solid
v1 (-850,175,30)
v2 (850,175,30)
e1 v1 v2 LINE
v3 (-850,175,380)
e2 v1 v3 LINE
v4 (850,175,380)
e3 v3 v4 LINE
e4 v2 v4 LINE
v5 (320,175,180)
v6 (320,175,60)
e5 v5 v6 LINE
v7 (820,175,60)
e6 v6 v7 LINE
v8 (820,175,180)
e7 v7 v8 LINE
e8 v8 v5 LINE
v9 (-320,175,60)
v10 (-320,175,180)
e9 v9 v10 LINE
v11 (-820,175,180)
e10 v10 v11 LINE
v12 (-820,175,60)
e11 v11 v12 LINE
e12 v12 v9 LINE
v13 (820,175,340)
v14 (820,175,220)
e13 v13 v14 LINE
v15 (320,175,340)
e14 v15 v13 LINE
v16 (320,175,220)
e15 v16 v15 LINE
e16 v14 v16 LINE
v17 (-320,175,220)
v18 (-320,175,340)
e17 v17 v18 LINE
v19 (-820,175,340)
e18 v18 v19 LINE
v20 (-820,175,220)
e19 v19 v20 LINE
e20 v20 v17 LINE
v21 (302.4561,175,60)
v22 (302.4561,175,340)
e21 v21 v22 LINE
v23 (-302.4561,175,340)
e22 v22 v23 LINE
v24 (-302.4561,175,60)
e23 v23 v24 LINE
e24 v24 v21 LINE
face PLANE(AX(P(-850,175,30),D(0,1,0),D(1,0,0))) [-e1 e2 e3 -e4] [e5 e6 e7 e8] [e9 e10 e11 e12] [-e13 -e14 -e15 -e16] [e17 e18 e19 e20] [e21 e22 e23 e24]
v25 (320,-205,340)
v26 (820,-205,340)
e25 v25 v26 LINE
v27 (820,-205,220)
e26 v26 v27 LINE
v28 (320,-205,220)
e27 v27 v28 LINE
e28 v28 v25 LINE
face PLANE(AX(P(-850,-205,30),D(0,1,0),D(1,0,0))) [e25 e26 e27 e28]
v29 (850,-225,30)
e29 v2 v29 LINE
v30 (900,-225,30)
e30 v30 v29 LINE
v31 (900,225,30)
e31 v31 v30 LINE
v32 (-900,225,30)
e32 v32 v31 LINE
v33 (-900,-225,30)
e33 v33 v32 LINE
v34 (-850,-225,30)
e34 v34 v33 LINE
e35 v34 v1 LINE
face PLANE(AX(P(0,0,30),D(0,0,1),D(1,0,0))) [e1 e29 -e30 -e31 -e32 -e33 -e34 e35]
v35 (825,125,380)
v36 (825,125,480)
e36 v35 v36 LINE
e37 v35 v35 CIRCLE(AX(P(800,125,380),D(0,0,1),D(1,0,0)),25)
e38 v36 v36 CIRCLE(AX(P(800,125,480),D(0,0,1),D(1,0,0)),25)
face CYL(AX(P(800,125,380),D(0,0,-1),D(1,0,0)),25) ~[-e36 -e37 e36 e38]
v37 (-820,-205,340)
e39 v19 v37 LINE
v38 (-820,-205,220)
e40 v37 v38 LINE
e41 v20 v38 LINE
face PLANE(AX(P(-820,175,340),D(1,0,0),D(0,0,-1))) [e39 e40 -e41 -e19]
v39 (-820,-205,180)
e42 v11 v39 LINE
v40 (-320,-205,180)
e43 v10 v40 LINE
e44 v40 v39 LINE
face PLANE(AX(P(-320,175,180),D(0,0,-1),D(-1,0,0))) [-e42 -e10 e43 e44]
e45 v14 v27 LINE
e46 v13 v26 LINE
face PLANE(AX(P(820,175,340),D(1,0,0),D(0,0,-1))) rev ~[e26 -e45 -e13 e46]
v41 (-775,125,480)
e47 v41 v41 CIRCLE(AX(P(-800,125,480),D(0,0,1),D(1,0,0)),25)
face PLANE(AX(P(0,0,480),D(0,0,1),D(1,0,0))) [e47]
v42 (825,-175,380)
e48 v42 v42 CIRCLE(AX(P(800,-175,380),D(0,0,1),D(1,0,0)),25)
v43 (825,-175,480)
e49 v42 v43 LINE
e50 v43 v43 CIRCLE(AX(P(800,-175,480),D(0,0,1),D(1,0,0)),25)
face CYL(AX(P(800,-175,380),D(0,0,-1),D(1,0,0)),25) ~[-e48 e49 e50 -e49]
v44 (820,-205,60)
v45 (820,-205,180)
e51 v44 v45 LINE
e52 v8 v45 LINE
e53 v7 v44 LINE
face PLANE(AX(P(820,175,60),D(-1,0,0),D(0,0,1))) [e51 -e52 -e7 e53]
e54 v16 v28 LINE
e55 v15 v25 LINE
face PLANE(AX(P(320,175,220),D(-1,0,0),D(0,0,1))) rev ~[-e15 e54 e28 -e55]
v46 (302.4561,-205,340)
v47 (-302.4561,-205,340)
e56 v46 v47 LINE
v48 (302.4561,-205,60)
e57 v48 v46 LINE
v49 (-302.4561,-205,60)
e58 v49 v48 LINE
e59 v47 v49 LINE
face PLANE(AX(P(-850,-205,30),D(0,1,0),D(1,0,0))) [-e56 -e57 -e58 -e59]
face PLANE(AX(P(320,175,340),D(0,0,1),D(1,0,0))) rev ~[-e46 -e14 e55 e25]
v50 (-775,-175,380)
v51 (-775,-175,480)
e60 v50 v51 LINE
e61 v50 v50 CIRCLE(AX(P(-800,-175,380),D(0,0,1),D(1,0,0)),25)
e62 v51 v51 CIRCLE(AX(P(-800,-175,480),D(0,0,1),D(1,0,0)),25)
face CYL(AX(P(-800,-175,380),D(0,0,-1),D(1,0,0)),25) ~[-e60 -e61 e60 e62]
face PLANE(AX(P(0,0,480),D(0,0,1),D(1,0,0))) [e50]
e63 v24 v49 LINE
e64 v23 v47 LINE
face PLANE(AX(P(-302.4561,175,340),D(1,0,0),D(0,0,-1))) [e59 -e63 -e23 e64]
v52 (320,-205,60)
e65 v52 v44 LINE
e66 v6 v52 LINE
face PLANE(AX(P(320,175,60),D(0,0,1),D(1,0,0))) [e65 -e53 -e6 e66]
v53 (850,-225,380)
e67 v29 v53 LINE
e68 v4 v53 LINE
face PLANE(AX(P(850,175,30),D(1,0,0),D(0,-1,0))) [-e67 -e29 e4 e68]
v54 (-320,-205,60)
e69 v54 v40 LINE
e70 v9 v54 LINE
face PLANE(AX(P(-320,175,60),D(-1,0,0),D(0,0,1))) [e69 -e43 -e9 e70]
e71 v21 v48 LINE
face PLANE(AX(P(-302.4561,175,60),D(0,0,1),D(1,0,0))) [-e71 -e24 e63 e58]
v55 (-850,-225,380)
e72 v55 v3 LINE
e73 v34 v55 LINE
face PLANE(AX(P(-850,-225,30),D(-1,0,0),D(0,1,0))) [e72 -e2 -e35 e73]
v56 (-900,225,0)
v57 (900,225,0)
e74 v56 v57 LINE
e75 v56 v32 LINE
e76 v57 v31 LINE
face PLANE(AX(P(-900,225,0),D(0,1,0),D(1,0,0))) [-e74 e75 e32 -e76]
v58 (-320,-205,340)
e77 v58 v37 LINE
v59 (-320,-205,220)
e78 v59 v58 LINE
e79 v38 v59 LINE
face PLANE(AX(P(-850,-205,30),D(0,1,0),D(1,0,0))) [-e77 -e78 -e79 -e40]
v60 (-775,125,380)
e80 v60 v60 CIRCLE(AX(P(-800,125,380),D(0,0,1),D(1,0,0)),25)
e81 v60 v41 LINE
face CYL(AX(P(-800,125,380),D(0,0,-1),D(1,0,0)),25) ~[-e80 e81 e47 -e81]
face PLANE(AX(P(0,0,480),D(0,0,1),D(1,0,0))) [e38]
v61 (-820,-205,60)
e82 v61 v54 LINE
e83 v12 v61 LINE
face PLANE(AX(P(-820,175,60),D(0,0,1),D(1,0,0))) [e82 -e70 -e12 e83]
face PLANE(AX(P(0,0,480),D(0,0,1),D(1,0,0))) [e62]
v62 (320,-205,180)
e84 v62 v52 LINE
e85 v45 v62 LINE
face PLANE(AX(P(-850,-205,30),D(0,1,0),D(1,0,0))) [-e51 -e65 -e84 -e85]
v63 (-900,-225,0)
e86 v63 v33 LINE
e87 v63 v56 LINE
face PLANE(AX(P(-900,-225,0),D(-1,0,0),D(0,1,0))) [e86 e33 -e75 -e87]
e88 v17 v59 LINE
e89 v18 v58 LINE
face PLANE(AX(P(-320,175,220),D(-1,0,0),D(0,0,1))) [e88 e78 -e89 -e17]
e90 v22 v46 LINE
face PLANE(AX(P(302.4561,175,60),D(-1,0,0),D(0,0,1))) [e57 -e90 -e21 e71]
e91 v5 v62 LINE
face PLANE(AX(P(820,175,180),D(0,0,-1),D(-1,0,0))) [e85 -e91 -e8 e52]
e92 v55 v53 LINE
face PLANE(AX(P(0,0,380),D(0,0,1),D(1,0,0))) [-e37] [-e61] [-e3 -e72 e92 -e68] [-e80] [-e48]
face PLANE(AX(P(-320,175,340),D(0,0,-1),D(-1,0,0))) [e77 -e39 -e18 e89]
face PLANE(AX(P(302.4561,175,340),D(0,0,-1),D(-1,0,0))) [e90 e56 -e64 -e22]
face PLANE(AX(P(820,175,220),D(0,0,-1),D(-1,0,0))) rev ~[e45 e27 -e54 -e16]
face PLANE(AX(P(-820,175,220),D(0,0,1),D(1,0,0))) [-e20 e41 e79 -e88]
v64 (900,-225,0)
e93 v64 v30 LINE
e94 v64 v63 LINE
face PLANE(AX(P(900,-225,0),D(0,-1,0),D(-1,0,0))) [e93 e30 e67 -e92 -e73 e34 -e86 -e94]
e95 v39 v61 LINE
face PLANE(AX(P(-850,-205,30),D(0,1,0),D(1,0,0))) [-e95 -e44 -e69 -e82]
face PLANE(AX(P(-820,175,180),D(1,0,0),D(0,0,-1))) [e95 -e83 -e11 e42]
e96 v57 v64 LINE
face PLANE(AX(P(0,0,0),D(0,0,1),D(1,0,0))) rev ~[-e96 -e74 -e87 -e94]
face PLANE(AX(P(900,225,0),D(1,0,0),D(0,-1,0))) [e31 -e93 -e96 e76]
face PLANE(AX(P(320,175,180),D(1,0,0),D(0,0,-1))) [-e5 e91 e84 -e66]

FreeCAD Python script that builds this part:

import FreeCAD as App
import Part
import Sketcher


def add_polygon(sketch, points):
    """Adds a closed chain of lines whose ends are joined by coincident constraints."""
    first, n = sketch.GeometryCount, len(points)
    for a, b in zip(points, points[1:] + points[:1]):
        sketch.addGeometry(Part.LineSegment(App.Vector(*a, 0), App.Vector(*b, 0)), False)
    for i in range(n):
        sketch.addConstraint(Sketcher.Constraint("Coincident", first + i, 2, first + (i + 1) % n, 1))

doc = App.newDocument("Part")
params = doc.addObject("Spreadsheet::Sheet", "Params")
for row, (alias, value) in enumerate([
    ("sketch1_width", "1800 mm"),
    ("sketch1_height", "450 mm"),
    ("pad1_length", "30 mm"),
    ("sketch2_width", "1700 mm"),
    ("sketch2_height", "400 mm"),
    ("pad2_length", "350 mm"),
    ("sketch3_width", "500 mm"),
    ("sketch3_height", "120 mm"),
    ("pocket1_length", "380 mm"),
    ("sketch4_height", "280 mm"),
    ("pocket2_length", "380 mm"),
    ("sketch5_diameter", "50 mm"),
    ("pad3_length", "100 mm"),
], start=1):
    params.set(f"A{row}", alias)
    params.set(f"B{row}", "=" + value)
    params.setAlias(f"B{row}", alias)

body = doc.addObject("PartDesign::Body", "Body")

sketch1 = body.newObject("Sketcher::SketchObject", "Sketch")
sketch1.AttachmentSupport = (doc.getObject("XY_Plane"), [""])
sketch1.MapMode = "FlatFace"
add_polygon(sketch1, [(-900, -225), (900, -225), (900, 225), (-900, 225)])
sketch1.addConstraint([
    Sketcher.Constraint("Horizontal", 0),
    Sketcher.Constraint("Vertical", 1),
    Sketcher.Constraint("Horizontal", 2),
    Sketcher.Constraint("Vertical", 3),
    Sketcher.Constraint("Symmetric", 0, 2, 2, 2, -1, 1),
    Sketcher.Constraint("DistanceX", 0, 1, 0, 2, 1800.0),
    Sketcher.Constraint("DistanceY", 1, 1, 1, 2, 450.0),
])
sketch1.setExpression("Constraints[9]", "Params.sketch1_width")
sketch1.setExpression("Constraints[10]", "Params.sketch1_height")
pad1 = body.newObject("PartDesign::Pad", "Pad")
pad1.Profile = sketch1
pad1.setExpression("Length", "Params.pad1_length")

sketch2 = body.newObject("Sketcher::SketchObject", "Sketch001")
sketch2.AttachmentSupport = (doc.getObject("XY_Plane"), [""])
sketch2.MapMode = "FlatFace"
sketch2.AttachmentOffset = App.Placement(App.Vector(0, 0, 30), App.Rotation())
add_polygon(sketch2, [(-850, 175), (-850, -225), (850, -225), (850, 175)])
sketch2.addConstraint([
    Sketcher.Constraint("Vertical", 0),
    Sketcher.Constraint("Horizontal", 1),
    Sketcher.Constraint("Vertical", 2),
    Sketcher.Constraint("Horizontal", 3),
    Sketcher.Constraint("DistanceX", 1, 1, 1, 2, 1700.0),
    Sketcher.Constraint("DistanceY", 0, 2, 0, 1, 400.0),
    Sketcher.Constraint("DistanceX", 0, 2, -1, 1, 850.0),
    Sketcher.Constraint("DistanceY", 0, 2, -1, 1, 225.0),
])
sketch2.setExpression("Constraints[8]", "Params.sketch2_width")
sketch2.setExpression("Constraints[9]", "Params.sketch2_height")
pad2 = body.newObject("PartDesign::Pad", "Pad001")
pad2.Profile = sketch2
pad2.setExpression("Length", "Params.pad2_length")

sketch3 = body.newObject("Sketcher::SketchObject", "Sketch002")
sketch3.AttachmentSupport = (doc.getObject("XZ_Plane"), [""])
sketch3.MapMode = "FlatFace"
sketch3.AttachmentOffset = App.Placement(App.Vector(0, 0, -175), App.Rotation())
add_polygon(sketch3, [(-320, 60), (-820, 60), (-820, 180), (-320, 180)])
add_polygon(sketch3, [(820, 60), (320, 60), (320, 180), (820, 180)])
add_polygon(sketch3, [(-320, 220), (-820, 220), (-820, 340), (-320, 340)])
add_polygon(sketch3, [(820, 340), (820, 220), (320, 220), (320, 340)])
sketch3.addConstraint([
    Sketcher.Constraint("Horizontal", 0),
    Sketcher.Constraint("Vertical", 1),
    Sketcher.Constraint("Horizontal", 2),
    Sketcher.Constraint("Vertical", 3),
    Sketcher.Constraint("Horizontal", 4),
    Sketcher.Constraint("Vertical", 5),
    Sketcher.Constraint("Horizontal", 6),
    Sketcher.Constraint("Vertical", 7),
    Sketcher.Constraint("Horizontal", 8),
    Sketcher.Constraint("Vertical", 9),
    Sketcher.Constraint("Horizontal", 10),
    Sketcher.Constraint("Vertical", 11),
    Sketcher.Constraint("Vertical", 12),
    Sketcher.Constraint("Horizontal", 13),
    Sketcher.Constraint("Vertical", 14),
    Sketcher.Constraint("Horizontal", 15),
    Sketcher.Constraint("Symmetric", 3, 2, 4, 2, -2),
    Sketcher.Constraint("Symmetric", 1, 2, 6, 2, -2),
    Sketcher.Constraint("Symmetric", 8, 2, 12, 2, -2),
    Sketcher.Constraint("Symmetric", 10, 2, 14, 2, -2),
    Sketcher.Constraint("Vertical", 1, 2, 8, 2),
    Sketcher.Constraint("Vertical", 3, 2, 10, 2),
    Sketcher.Constraint("Equal", 7, 9),
    Sketcher.Constraint("DistanceX", 0, 2, 0, 1, 500.0),
    Sketcher.Constraint("DistanceY", 1, 1, 1, 2, 120.0),
    Sketcher.Constraint("DistanceY", 1, 2, 8, 2, 40.0),
    Sketcher.Constraint("DistanceX", 0, 2, -1, 1, 820.0),
    Sketcher.Constraint("DistanceY", -1, 1, 0, 2, 60.0),
])
sketch3.setExpression("Constraints[39]", "Params.sketch3_width")
sketch3.setExpression("Constraints[40]", "Params.sketch3_height")
pocket1 = body.newObject("PartDesign::Pocket", "Pocket")
pocket1.Profile = sketch3
pocket1.setExpression("Length", "Params.pocket1_length")
pocket1.Reversed = True

sketch4 = body.newObject("Sketcher::SketchObject", "Sketch003")
sketch4.AttachmentSupport = (doc.getObject("XZ_Plane"), [""])
sketch4.MapMode = "FlatFace"
sketch4.AttachmentOffset = App.Placement(App.Vector(0, 0, -175), App.Rotation())
add_polygon(sketch4, [(-302, 340), (302, 340), (302, 60), (-302, 60)])
sketch4.addConstraint([
    Sketcher.Constraint("Horizontal", 0),
    Sketcher.Constraint("Vertical", 1),
    Sketcher.Constraint("Horizontal", 2),
    Sketcher.Constraint("Vertical", 3),
    Sketcher.Constraint("DistanceY", 1, 2, 1, 1, 280.0),
    Sketcher.Constraint("DistanceY", -1, 1, 0, 2, 340.0),
    Sketcher.Constraint("DistanceX", 0, 1, 0, 2, 604.9122),
    Sketcher.Constraint("DistanceX", -1, 1, 0, 2, 302.456),
])
sketch4.setExpression("Constraints[8]", "Params.sketch4_height")
pocket2 = body.newObject("PartDesign::Pocket", "Pocket001")
pocket2.Profile = sketch4
pocket2.setExpression("Length", "Params.pocket2_length")
pocket2.Reversed = True

sketch5 = body.newObject("Sketcher::SketchObject", "Sketch004")
sketch5.AttachmentSupport = (doc.getObject("XY_Plane"), [""])
sketch5.MapMode = "FlatFace"
sketch5.AttachmentOffset = App.Placement(App.Vector(0, 0, 380), App.Rotation())
sketch5.addGeometry([
    Part.Circle(App.Vector(-800, 125, 0), App.Vector(0, 0, 1), 25),
    Part.Circle(App.Vector(800, 125, 0), App.Vector(0, 0, 1), 25),
    Part.Circle(App.Vector(800, -175, 0), App.Vector(0, 0, 1), 25),
    Part.Circle(App.Vector(-800, -175, 0), App.Vector(0, 0, 1), 25),
], False)
sketch5.addConstraint([
    Sketcher.Constraint("Equal", 0, 1),
    Sketcher.Constraint("Equal", 1, 2),
    Sketcher.Constraint("Equal", 2, 3),
    Sketcher.Constraint("Symmetric", 0, 3, 1, 3, -2),
    Sketcher.Constraint("Symmetric", 2, 3, 3, 3, -2),
    Sketcher.Constraint("Vertical", 1, 3, 2, 3),
    Sketcher.Constraint("Diameter", 0, 50.0),
    Sketcher.Constraint("DistanceX", 0, 3, -1, 1, 800.0),
    Sketcher.Constraint("DistanceY", -1, 1, 0, 3, 125.0),
    Sketcher.Constraint("DistanceY", 2, 3, -1, 1, 175.0),
])
sketch5.setExpression("Constraints[6]", "Params.sketch5_diameter")
pad3 = body.newObject("PartDesign::Pad", "Pad002")
pad3.Profile = sketch5
pad3.setExpression("Length", "Params.pad3_length")

doc.recompute()
